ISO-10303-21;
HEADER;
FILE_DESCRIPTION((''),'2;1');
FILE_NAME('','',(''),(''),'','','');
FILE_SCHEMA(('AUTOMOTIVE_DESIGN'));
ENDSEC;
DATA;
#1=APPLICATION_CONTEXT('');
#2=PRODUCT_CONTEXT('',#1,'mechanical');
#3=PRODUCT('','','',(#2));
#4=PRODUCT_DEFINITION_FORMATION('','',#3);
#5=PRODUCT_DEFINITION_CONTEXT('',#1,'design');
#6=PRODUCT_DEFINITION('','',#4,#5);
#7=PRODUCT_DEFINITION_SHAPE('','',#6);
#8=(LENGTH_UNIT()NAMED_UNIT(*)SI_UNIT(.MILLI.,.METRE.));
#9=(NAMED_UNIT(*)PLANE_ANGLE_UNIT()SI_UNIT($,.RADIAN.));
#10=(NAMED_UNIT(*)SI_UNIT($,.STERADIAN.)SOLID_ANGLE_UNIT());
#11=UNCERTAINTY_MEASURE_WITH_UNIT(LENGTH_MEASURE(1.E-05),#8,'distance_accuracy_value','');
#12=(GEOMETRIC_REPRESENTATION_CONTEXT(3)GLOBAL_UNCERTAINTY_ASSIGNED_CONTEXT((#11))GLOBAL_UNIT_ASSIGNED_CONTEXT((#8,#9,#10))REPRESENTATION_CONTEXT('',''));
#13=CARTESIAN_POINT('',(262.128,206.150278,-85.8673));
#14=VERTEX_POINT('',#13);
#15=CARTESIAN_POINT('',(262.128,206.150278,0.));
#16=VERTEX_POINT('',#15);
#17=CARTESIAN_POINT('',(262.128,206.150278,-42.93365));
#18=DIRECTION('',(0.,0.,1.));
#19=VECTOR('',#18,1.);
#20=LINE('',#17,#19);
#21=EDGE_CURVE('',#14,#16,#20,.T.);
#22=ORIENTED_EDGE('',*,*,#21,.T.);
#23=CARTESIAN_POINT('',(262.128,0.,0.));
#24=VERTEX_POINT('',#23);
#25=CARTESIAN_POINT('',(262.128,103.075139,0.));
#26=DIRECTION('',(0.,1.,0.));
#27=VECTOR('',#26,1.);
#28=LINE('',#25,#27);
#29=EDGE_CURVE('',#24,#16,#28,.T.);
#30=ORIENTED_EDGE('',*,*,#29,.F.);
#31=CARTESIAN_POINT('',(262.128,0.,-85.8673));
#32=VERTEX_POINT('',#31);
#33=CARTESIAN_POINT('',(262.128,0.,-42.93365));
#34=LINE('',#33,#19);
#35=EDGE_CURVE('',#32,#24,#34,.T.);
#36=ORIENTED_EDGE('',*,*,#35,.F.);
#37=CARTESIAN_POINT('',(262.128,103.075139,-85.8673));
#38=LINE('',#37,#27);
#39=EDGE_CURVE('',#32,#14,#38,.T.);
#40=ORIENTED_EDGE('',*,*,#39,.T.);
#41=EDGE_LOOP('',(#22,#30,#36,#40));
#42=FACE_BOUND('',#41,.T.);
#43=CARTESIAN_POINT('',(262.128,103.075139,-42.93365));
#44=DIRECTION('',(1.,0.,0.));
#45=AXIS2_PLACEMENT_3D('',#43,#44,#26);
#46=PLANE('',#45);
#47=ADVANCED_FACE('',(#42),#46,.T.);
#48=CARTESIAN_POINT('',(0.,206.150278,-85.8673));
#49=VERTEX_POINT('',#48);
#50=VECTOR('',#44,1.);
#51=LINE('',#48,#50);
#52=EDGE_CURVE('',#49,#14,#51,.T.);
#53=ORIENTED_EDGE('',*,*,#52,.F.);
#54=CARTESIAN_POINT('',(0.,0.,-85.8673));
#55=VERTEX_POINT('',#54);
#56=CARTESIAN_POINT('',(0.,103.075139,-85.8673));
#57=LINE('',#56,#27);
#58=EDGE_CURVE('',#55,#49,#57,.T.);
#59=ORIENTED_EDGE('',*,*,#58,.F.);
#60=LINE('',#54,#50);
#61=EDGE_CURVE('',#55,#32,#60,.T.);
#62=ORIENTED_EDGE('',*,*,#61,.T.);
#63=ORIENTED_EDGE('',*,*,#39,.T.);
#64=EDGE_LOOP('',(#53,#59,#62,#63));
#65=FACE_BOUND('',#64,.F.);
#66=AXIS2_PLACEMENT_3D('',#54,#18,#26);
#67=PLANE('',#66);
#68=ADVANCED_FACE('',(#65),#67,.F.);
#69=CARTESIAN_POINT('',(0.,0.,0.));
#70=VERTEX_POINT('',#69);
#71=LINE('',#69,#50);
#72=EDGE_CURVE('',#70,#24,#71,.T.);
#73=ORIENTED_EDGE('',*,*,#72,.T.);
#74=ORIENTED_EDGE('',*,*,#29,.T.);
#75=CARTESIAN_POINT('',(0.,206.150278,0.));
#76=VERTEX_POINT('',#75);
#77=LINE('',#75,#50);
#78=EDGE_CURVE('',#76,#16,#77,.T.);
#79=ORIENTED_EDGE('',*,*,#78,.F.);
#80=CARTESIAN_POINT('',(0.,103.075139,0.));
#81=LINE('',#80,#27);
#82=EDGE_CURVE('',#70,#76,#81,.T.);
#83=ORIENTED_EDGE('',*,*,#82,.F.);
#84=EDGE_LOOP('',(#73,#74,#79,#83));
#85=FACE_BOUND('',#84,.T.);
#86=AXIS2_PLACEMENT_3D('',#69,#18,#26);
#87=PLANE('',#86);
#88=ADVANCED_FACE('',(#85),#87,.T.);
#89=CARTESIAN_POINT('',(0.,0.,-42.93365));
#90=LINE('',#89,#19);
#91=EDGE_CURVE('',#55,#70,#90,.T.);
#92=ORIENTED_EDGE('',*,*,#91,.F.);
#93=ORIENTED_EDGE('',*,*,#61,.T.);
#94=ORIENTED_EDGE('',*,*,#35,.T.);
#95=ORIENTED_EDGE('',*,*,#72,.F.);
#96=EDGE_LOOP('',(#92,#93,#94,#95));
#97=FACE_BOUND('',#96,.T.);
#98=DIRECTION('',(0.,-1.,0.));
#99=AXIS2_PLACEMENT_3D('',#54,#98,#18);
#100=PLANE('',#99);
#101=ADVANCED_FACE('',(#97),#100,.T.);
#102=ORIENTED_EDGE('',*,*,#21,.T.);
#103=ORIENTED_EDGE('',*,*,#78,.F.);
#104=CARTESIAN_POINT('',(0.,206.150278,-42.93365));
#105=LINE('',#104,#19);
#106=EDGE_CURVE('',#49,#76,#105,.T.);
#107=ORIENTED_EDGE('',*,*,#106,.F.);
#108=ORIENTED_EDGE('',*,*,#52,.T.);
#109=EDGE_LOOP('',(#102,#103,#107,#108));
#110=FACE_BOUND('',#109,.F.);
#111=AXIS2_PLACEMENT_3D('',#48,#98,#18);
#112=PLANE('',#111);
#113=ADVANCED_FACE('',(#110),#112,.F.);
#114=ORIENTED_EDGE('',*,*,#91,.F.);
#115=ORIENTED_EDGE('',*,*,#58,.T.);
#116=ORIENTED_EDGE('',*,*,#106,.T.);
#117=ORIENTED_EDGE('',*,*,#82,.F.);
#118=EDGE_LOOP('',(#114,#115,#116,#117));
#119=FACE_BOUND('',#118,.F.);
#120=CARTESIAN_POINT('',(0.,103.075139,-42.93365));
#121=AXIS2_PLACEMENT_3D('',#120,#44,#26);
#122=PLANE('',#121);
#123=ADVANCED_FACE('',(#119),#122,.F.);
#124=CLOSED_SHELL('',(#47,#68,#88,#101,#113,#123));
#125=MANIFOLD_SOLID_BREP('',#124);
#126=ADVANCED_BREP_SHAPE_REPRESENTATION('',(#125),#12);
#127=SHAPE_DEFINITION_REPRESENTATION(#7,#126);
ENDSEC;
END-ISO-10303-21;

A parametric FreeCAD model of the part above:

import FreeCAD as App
import Part
import Sketcher
from FreeCAD import Vector
Q = App.Units.Quantity

doc = App.newDocument("Part")
body = doc.addObject("PartDesign::Body", "Body")

# Sketch on YZ plane
sketch1 = doc.addObject("Sketcher::SketchObject", "Sketch")
body.addObject(sketch1)
sketch1.AttachmentSupport = (doc.YZ_Plane, [""])
sketch1.MapMode = "FlatFace"
sketch1.addGeometry([
    Part.LineSegment(Vector(0, 0, 0), Vector(0, -86, 0)),
    Part.LineSegment(Vector(0, -86, 0), Vector(206, -86, 0)),
    Part.LineSegment(Vector(206, -86, 0), Vector(206, 0, 0)),
    Part.LineSegment(Vector(206, 0, 0), Vector(0, 0, 0)),
], False)
sketch1.addConstraint([
    Sketcher.Constraint("Coincident", 0, 2, 1, 1),
    Sketcher.Constraint("Coincident", 1, 2, 2, 1),
    Sketcher.Constraint("Coincident", 2, 2, 3, 1),
    Sketcher.Constraint("Coincident", 3, 2, 0, 1),
    Sketcher.Constraint("Vertical", 0),
    Sketcher.Constraint("Horizontal", 1),
    Sketcher.Constraint("Vertical", 2),
    Sketcher.Constraint("Horizontal", 3),
    Sketcher.Constraint("Coincident", 3, 2, -1, 1),
    Sketcher.Constraint("DistanceY", 0, 2, 0, 1, 85.867301),
    Sketcher.Constraint("DistanceX", 1, 1, 1, 2, 206.150278),
])
pad1 = doc.addObject("PartDesign::Pad", "Pad")
body.addObject(pad1)
pad1.Profile = sketch1
pad1.Length = Q("10.32 in")

# Sketch on XY plane
sketch2 = doc.addObject("Sketcher::SketchObject", "Sketch001")
body.addObject(sketch2)
sketch2.AttachmentSupport = (doc.XY_Plane, [""])
sketch2.MapMode = "FlatFace"
sketch2.addGeometry([
    Part.LineSegment(Vector(21, 189, 0), Vector(21, 18, 0)),
    Part.LineSegment(Vector(21, 18, 0), Vector(243, 18, 0)),
    Part.LineSegment(Vector(243, 18, 0), Vector(243, 189, 0)),
    Part.LineSegment(Vector(243, 189, 0), Vector(21, 189, 0)),
], False)
sketch2.addConstraint([
    Sketcher.Constraint("Coincident", 0, 2, 1, 1),
    Sketcher.Constraint("Coincident", 1, 2, 2, 1),
    Sketcher.Constraint("Coincident", 2, 2, 3, 1),
    Sketcher.Constraint("Coincident", 3, 2, 0, 1),
    Sketcher.Constraint("Vertical", 0),
    Sketcher.Constraint("Horizontal", 1),
    Sketcher.Constraint("Vertical", 2),
    Sketcher.Constraint("Horizontal", 3),
    Sketcher.Constraint("DistanceY", 0, 2, 0, 1, 170.495471),
    Sketcher.Constraint("DistanceX", 1, 1, 1, 2, 221.906885),
    Sketcher.Constraint("DistanceX", -1, 1, 0, 2, 20.659478),
    Sketcher.Constraint("DistanceY", -1, 1, 0, 2, 18.334323),
])
pad2 = doc.addObject("PartDesign::Pad", "Pad001")
body.addObject(pad2)
pad2.Profile = sketch2
pad2.Length = Q("0.6 in")
pad2.Reversed = True

# Sketch on XY plane
sketch3 = doc.addObject("Sketcher::SketchObject", "Sketch002")
body.addObject(sketch3)
sketch3.AttachmentSupport = (doc.XY_Plane, [""])
sketch3.MapMode = "FlatFace"
sketch3.addGeometry([
    Part.LineSegment(Vector(16, 194, 0), Vector(16, 16, 0)),
    Part.LineSegment(Vector(16, 16, 0), Vector(245, 16, 0)),
    Part.LineSegment(Vector(245, 16, 0), Vector(245, 194, 0)),
    Part.LineSegment(Vector(245, 194, 0), Vector(16, 194, 0)),
], False)
sketch3.addConstraint([
    Sketcher.Constraint("Coincident", 0, 2, 1, 1),
    Sketcher.Constraint("Coincident", 1, 2, 2, 1),
    Sketcher.Constraint("Coincident", 2, 2, 3, 1),
    Sketcher.Constraint("Coincident", 3, 2, 0, 1),
    Sketcher.Constraint("Vertical", 0),
    Sketcher.Constraint("Horizontal", 1),
    Sketcher.Constraint("Vertical", 2),
    Sketcher.Constraint("Horizontal", 3),
    Sketcher.Constraint("DistanceX", 1, 1, 1, 2, Q("9.031 in")),
    Sketcher.Constraint("DistanceY", 0, 2, 0, 1, 177.979987),
    Sketcher.Constraint("DistanceX", -1, 1, 0, 2, 15.851992),
    Sketcher.Constraint("DistanceY", -1, 1, 0, 2, 15.661288),
])
pad3 = doc.addObject("PartDesign::Pad", "Pad002")
body.addObject(pad3)
pad3.Profile = sketch3
pad3.Length = Q("1.59 in")
pad3.Reversed = True

doc.recompute()
